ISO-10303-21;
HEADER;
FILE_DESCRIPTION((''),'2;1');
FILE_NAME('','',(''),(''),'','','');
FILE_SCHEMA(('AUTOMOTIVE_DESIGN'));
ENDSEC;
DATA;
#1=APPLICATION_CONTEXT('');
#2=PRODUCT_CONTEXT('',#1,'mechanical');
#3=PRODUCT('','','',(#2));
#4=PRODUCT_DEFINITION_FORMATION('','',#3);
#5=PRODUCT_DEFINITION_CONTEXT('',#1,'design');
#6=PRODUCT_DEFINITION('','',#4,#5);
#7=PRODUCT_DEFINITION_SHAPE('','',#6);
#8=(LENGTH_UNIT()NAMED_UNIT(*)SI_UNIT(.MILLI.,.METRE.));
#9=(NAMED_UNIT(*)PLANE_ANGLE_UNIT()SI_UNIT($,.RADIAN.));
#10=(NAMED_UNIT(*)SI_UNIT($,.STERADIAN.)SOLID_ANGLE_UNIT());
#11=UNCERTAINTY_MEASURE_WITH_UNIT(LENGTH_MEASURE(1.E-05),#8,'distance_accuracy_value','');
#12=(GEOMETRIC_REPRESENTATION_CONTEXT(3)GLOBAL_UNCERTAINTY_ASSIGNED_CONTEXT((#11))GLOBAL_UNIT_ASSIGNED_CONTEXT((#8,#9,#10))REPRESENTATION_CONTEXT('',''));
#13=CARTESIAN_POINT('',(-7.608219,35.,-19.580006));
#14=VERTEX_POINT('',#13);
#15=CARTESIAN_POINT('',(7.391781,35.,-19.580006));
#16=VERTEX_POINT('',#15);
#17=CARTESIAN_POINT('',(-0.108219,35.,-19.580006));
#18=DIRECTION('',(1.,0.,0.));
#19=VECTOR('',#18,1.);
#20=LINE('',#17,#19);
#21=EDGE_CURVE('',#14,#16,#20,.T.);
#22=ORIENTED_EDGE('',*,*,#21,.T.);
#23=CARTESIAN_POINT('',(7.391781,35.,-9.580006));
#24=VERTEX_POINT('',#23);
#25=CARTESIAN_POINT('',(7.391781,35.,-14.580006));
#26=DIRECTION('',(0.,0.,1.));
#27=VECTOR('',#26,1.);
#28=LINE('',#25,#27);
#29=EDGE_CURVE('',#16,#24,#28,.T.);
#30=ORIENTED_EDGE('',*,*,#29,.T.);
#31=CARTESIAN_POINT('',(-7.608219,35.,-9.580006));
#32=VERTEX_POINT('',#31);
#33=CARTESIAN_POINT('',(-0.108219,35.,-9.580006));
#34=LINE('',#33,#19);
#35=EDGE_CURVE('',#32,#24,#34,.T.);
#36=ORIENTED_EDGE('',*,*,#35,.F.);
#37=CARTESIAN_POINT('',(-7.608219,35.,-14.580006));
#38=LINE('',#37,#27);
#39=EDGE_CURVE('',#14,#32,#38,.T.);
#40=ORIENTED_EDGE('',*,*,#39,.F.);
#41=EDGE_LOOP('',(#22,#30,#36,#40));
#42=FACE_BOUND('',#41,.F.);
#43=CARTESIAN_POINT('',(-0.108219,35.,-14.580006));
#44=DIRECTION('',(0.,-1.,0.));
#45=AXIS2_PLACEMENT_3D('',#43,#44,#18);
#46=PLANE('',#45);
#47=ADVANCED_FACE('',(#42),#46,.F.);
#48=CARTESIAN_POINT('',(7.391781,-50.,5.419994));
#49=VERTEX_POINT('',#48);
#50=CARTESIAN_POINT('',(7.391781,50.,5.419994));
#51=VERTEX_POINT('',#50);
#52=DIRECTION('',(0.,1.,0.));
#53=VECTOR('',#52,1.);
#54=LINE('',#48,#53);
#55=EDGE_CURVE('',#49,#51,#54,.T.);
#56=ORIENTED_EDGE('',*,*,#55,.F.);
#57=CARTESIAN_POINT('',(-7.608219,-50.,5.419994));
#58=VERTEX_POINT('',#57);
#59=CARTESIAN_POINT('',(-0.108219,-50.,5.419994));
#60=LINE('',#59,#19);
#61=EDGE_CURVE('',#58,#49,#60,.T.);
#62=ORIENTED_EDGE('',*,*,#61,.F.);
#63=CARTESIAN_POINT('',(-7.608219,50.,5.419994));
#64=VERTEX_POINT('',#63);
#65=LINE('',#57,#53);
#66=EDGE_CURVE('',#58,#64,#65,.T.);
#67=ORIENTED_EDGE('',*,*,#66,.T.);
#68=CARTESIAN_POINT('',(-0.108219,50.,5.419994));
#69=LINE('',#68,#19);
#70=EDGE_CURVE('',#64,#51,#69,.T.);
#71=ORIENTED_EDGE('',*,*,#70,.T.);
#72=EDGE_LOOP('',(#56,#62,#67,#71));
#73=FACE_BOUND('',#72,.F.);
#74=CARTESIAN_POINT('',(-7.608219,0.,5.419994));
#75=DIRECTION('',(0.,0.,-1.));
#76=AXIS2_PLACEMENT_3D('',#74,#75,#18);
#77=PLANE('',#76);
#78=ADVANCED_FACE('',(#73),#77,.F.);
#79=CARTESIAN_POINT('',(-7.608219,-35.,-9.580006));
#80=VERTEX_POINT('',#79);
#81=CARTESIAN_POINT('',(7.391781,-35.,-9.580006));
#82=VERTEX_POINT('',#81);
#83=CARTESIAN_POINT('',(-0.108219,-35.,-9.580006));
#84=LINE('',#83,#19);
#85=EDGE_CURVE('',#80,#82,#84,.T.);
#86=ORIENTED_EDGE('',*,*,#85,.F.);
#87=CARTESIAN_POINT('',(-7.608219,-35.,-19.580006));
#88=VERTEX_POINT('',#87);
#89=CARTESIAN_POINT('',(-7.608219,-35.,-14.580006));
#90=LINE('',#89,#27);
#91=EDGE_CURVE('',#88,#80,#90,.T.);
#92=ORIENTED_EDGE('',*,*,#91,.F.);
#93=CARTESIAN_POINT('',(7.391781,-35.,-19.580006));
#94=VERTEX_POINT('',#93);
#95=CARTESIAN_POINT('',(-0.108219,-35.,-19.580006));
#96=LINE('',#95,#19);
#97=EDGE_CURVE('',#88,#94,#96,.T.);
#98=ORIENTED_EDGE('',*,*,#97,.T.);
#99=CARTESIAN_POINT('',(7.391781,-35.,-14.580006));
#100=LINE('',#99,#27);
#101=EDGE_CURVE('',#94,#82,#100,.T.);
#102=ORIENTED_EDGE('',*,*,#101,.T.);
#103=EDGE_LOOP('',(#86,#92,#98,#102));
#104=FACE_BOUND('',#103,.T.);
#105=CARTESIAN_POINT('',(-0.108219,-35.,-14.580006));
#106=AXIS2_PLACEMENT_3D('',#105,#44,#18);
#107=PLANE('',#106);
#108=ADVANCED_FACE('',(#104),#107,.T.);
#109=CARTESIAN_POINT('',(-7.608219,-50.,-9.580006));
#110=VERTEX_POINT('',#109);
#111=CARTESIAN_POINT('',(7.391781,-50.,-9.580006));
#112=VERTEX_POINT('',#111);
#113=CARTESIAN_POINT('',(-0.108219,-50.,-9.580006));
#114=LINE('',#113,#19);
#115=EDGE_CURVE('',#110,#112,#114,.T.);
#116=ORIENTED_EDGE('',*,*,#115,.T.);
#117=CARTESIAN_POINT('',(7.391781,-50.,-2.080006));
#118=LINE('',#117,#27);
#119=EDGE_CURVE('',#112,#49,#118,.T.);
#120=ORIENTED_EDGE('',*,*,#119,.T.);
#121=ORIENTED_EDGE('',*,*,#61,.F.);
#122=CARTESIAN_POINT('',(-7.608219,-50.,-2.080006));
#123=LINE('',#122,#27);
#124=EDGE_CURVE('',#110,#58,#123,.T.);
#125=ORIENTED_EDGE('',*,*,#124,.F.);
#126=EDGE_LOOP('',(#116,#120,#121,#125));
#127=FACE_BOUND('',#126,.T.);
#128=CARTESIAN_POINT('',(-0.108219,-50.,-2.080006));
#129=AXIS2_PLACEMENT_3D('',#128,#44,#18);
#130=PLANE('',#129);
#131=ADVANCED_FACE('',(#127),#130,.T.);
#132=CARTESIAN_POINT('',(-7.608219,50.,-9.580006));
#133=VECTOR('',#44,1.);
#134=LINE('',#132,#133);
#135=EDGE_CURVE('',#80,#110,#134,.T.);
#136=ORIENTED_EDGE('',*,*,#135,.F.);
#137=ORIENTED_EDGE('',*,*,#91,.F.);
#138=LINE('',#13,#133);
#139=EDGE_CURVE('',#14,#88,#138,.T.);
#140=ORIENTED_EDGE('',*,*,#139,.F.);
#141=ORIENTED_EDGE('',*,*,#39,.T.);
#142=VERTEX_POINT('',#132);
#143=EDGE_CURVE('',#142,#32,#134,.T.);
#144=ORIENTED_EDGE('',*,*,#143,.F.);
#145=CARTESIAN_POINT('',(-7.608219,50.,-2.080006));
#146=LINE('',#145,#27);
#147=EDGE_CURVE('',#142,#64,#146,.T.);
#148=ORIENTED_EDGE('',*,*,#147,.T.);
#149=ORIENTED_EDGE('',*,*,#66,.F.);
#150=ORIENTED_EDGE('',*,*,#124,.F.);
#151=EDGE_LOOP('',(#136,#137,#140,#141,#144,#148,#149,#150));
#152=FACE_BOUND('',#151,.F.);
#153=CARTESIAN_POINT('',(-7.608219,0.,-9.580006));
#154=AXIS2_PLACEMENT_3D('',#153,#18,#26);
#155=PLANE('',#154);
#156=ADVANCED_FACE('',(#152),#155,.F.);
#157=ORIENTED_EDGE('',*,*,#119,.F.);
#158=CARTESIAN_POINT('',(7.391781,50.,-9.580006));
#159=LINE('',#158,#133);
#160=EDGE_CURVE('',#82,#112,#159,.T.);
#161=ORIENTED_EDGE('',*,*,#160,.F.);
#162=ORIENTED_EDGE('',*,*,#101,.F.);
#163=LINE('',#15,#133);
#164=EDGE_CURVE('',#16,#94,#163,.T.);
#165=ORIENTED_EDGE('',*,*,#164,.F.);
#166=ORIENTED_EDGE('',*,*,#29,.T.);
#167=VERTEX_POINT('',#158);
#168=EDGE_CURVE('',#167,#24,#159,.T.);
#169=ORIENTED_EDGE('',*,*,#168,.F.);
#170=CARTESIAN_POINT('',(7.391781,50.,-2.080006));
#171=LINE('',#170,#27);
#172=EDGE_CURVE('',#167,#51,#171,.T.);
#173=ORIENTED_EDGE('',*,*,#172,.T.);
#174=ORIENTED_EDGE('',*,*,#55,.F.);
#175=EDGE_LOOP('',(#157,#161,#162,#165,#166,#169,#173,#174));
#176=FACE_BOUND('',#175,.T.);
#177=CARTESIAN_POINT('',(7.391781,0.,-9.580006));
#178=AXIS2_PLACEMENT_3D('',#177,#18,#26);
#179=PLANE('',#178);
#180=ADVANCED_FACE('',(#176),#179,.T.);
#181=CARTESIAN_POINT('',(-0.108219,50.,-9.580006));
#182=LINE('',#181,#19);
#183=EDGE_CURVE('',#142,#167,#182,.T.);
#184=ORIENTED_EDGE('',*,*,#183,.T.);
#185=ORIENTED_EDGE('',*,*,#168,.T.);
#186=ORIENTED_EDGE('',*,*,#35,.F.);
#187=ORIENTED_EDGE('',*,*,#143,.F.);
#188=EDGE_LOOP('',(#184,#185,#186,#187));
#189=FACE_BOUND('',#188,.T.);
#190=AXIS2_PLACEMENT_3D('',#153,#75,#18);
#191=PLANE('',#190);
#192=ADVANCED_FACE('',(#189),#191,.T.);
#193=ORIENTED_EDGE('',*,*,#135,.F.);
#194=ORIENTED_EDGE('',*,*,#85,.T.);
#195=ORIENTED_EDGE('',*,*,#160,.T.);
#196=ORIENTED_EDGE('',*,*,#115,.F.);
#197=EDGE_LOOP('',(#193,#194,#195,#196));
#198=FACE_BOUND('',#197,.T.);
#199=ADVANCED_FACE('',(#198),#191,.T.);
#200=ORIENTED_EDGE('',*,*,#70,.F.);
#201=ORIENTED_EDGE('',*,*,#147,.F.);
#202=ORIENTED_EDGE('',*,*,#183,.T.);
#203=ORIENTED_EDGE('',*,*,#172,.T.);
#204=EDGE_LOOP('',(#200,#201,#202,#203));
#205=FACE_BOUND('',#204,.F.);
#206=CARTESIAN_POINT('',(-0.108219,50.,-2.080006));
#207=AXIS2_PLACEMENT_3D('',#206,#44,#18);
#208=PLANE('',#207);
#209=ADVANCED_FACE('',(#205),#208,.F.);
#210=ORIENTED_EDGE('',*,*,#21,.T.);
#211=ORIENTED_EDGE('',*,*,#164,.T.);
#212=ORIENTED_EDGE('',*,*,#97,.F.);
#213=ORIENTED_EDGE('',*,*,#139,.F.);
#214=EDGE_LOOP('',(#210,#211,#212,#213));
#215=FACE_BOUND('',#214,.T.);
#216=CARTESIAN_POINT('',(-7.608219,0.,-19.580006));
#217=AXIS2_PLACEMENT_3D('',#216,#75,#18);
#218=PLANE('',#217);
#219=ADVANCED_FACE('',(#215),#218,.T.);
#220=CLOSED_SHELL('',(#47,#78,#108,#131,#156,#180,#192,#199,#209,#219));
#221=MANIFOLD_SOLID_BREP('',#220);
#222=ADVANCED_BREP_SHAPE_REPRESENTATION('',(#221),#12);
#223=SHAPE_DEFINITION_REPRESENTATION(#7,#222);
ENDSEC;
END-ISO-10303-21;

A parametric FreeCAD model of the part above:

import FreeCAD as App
import Part
import Sketcher

doc = App.newDocument("Part")
body = doc.addObject("PartDesign::Body", "Body")

# Sketch on XZ plane
sketch1 = doc.addObject("Sketcher::SketchObject", "Sketch")
body.addObject(sketch1)
sketch1.AttachmentSupport = (doc.XZ_Plane, [""])
sketch1.MapMode = "FlatFace"
sketch1.addGeometry([
    Part.LineSegment(App.Vector(-7.608219, 5.419994, 0), App.Vector(-7.608219, -9.580006, 0)),
    Part.LineSegment(App.Vector(-7.608219, -9.580006, 0), App.Vector(7.391781, -9.580006, 0)),
    Part.LineSegment(App.Vector(7.391781, -9.580006, 0), App.Vector(7.391781, 5.419994, 0)),
    Part.LineSegment(App.Vector(7.391781, 5.419994, 0), App.Vector(-7.608219, 5.419994, 0)),
], False)
sketch1.addConstraint([
    Sketcher.Constraint("Coincident", 0, 2, 1, 1),
    Sketcher.Constraint("Coincident", 1, 2, 2, 1),
    Sketcher.Constraint("Coincident", 2, 2, 3, 1),
    Sketcher.Constraint("Coincident", 3, 2, 0, 1),
    Sketcher.Constraint("Vertical", 0),
    Sketcher.Constraint("Horizontal", 1),
    Sketcher.Constraint("Vertical", 2),
    Sketcher.Constraint("Horizontal", 3),
    Sketcher.Constraint("Equal", 3, 0),
    Sketcher.Constraint("DistanceX", 1, 1, 1, 2, 15.0),
    Sketcher.Constraint("DistanceX", 0, 2, -1, 1, 7.608219),
    Sketcher.Constraint("DistanceY", 0, 2, -1, 1, 9.580006),
])
pad1 = doc.addObject("PartDesign::Pad", "Pad")
body.addObject(pad1)
pad1.Profile = sketch1
pad1.Length = 100
pad1.Midplane = True

# Sketch on XZ plane
sketch2 = doc.addObject("Sketcher::SketchObject", "Sketch001")
body.addObject(sketch2)
sketch2.AttachmentSupport = (doc.XZ_Plane, [""])
sketch2.MapMode = "FlatFace"
sketch2.addGeometry([
    Part.LineSegment(App.Vector(-7.608219, -9.580006, 0), App.Vector(-7.608219, -19.580006, 0)),
    Part.LineSegment(App.Vector(-7.608219, -19.580006, 0), App.Vector(7.391781, -19.580006, 0)),
    Part.LineSegment(App.Vector(7.391781, -19.580006, 0), App.Vector(7.391781, -9.580006, 0)),
    Part.LineSegment(App.Vector(7.391781, -9.580006, 0), App.Vector(-7.608219, -9.580006, 0)),
], False)
sketch2.addConstraint([
    Sketcher.Constraint("Coincident", 0, 2, 1, 1),
    Sketcher.Constraint("Coincident", 1, 2, 2, 1),
    Sketcher.Constraint("Coincident", 2, 2, 3, 1),
    Sketcher.Constraint("Coincident", 3, 2, 0, 1),
    Sketcher.Constraint("Vertical", 0),
    Sketcher.Constraint("Horizontal", 1),
    Sketcher.Constraint("Vertical", 2),
    Sketcher.Constraint("Horizontal", 3),
    Sketcher.Constraint("DistanceX", 1, 1, 1, 2, 15.0),
    Sketcher.Constraint("DistanceY", 0, 2, 0, 1, 10.0),
    Sketcher.Constraint("DistanceX", 0, 2, -1, 1, 7.608219),
    Sketcher.Constraint("DistanceY", 0, 2, -1, 1, 19.580006),
])
pad2 = doc.addObject("PartDesign::Pad", "Pad001")
body.addObject(pad2)
pad2.Profile = sketch2
pad2.Length = 70
pad2.Midplane = True

doc.recompute()
